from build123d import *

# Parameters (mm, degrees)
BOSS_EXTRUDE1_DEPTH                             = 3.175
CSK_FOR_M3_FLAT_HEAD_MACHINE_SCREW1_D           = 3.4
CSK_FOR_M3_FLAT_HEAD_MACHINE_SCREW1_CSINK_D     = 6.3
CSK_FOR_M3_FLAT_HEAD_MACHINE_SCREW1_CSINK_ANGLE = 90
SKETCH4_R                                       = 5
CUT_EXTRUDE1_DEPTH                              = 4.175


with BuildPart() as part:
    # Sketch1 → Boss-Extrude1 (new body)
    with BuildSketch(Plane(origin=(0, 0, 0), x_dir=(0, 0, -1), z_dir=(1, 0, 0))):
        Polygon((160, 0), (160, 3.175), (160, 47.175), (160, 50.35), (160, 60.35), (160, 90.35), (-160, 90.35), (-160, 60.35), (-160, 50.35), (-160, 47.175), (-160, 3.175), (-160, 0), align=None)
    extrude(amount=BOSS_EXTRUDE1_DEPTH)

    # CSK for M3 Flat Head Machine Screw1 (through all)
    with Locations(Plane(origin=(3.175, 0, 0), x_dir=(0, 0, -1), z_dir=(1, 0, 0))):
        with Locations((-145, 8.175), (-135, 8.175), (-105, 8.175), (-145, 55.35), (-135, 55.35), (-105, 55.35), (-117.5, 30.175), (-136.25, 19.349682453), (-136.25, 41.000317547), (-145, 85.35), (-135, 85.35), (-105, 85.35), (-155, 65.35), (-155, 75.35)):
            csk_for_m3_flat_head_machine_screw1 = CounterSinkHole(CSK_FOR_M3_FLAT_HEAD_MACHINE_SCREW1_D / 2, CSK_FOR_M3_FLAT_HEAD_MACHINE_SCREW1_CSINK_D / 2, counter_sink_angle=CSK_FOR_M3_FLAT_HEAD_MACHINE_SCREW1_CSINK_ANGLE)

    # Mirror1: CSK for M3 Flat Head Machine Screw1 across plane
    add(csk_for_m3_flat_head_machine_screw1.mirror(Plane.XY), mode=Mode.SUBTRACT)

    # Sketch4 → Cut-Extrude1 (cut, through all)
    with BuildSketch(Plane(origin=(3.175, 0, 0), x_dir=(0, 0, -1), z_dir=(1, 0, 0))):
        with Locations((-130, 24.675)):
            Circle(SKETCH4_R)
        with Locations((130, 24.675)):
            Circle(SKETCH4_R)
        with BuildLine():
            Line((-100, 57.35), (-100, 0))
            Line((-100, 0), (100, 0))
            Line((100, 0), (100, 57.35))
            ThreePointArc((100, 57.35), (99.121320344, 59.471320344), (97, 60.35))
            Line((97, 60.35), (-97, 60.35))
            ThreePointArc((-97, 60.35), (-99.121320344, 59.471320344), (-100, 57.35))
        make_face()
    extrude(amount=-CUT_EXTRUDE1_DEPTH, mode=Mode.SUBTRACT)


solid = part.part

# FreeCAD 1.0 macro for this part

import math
import FreeCAD as App
import Part
import Sketcher
from FreeCAD import Vector
Q = App.Units.Quantity


def add_polygon(sketch, points):
    """Adds a closed chain of lines whose ends are joined by coincident constraints."""
    first, n = sketch.GeometryCount, len(points)
    for a, b in zip(points, points[1:] + points[:1]):
        sketch.addGeometry(Part.LineSegment(App.Vector(*a, 0), App.Vector(*b, 0)), False)
    for i in range(n):
        sketch.addConstraint(Sketcher.Constraint("Coincident", first + i, 2, first + (i + 1) % n, 1))

doc = App.newDocument("Part")
body = doc.addObject("PartDesign::Body", "Body")

# Sketch on YZ plane
sketch1 = doc.addObject("Sketcher::SketchObject", "Sketch")
body.addObject(sketch1)
sketch1.AttachmentSupport = (doc.YZ_Plane, [""])
sketch1.MapMode = "FlatFace"
add_polygon(sketch1, [(0, -160), (90, -160), (90, 160), (0, 160)])  # lines 0-3
sketch1.addConstraint(Sketcher.Constraint("Horizontal", 0))
sketch1.addConstraint(Sketcher.Constraint("Vertical", 1))
sketch1.addConstraint(Sketcher.Constraint("Horizontal", 2))
sketch1.addConstraint(Sketcher.Constraint("Vertical", 3))
sketch1.addConstraint(Sketcher.Constraint("Symmetric", 2, 2, 3, 2, -1, 1))
sketch1.addConstraint(Sketcher.Constraint("DistanceY", 1, 1, 1, 2, Q("320 mm")))
sketch1.addConstraint(Sketcher.Constraint("DistanceX", 0, 1, 0, 2, Q("90.35 mm")))
pad1 = doc.addObject("PartDesign::Pad", "Pad")
body.addObject(pad1)
pad1.Profile = sketch1
pad1.Length = 3.175

# Sketch on YZ plane
sketch2 = doc.addObject("Sketcher::SketchObject", "Sketch001")
body.addObject(sketch2)
sketch2.AttachmentSupport = (doc.YZ_Plane, [""])
sketch2.MapMode = "FlatFace"
sketch2.AttachmentOffset = App.Placement(Vector(0, 0, 3.175), App.Rotation())
sketch2.addGeometry(Part.Circle(Vector(8.2, 145, 0), Vector(0, 0, 1), 1.7), False)
sketch2.addGeometry(Part.Circle(Vector(8.2, 135, 0), Vector(0, 0, 1), 1.7), False)
sketch2.addGeometry(Part.Circle(Vector(8.2, 105, 0), Vector(0, 0, 1), 1.7), False)
sketch2.addGeometry(Part.Circle(Vector(55.4, 145, 0), Vector(0, 0, 1), 1.7), False)
sketch2.addGeometry(Part.Circle(Vector(55.4, 135, 0), Vector(0, 0, 1), 1.7), False)
sketch2.addGeometry(Part.Circle(Vector(55.4, 105, 0), Vector(0, 0, 1), 1.7), False)
sketch2.addGeometry(Part.Circle(Vector(30.2, 117.5, 0), Vector(0, 0, 1), 1.7), False)
sketch2.addGeometry(Part.Circle(Vector(19.3, 136.2, 0), Vector(0, 0, 1), 1.7), False)
sketch2.addGeometry(Part.Circle(Vector(41, 136.2, 0), Vector(0, 0, 1), 1.7), False)
sketch2.addGeometry(Part.Circle(Vector(85.3, 145, 0), Vector(0, 0, 1), 1.7), False)
sketch2.addGeometry(Part.Circle(Vector(85.3, 135, 0), Vector(0, 0, 1), 1.7), False)
sketch2.addGeometry(Part.Circle(Vector(85.3, 105, 0), Vector(0, 0, 1), 1.7), False)
sketch2.addGeometry(Part.Circle(Vector(65.3, 155, 0), Vector(0, 0, 1), 1.7), False)
sketch2.addGeometry(Part.Circle(Vector(75.3, 155, 0), Vector(0, 0, 1), 1.7), False)
sketch2.addConstraint(Sketcher.Constraint("Equal", 0, 1))
sketch2.addConstraint(Sketcher.Constraint("Equal", 1, 2))
sketch2.addConstraint(Sketcher.Constraint("Equal", 2, 3))
sketch2.addConstraint(Sketcher.Constraint("Equal", 3, 4))
sketch2.addConstraint(Sketcher.Constraint("Equal", 4, 5))
sketch2.addConstraint(Sketcher.Constraint("Equal", 5, 6))
sketch2.addConstraint(Sketcher.Constraint("Equal", 6, 7))
sketch2.addConstraint(Sketcher.Constraint("Equal", 7, 8))
sketch2.addConstraint(Sketcher.Constraint("Equal", 8, 9))
sketch2.addConstraint(Sketcher.Constraint("Equal", 9, 10))
sketch2.addConstraint(Sketcher.Constraint("Equal", 10, 11))
sketch2.addConstraint(Sketcher.Constraint("Equal", 11, 12))
sketch2.addConstraint(Sketcher.Constraint("Equal", 12, 13))
sketch2.addConstraint(Sketcher.Constraint("Horizontal", 0, 3, 3, 3))
sketch2.addConstraint(Sketcher.Constraint("Horizontal", 1, 3, 4, 3))
sketch2.addConstraint(Sketcher.Constraint("Horizontal", 2, 3, 5, 3))
sketch2.addConstraint(Sketcher.Constraint("Horizontal", 7, 3, 8, 3))
sketch2.addConstraint(Sketcher.Constraint("Horizontal", 3, 3, 9, 3))
sketch2.addConstraint(Sketcher.Constraint("Horizontal", 4, 3, 10, 3))
sketch2.addConstraint(Sketcher.Constraint("Horizontal", 5, 3, 11, 3))
sketch2.addConstraint(Sketcher.Constraint("Horizontal", 12, 3, 13, 3))
sketch2.addConstraint(Sketcher.Constraint("Vertical", 0, 3, 1, 3))
sketch2.addConstraint(Sketcher.Constraint("Vertical", 1, 3, 2, 3))
sketch2.addConstraint(Sketcher.Constraint("Vertical", 3, 3, 4, 3))
sketch2.addConstraint(Sketcher.Constraint("Vertical", 4, 3, 5, 3))
sketch2.addConstraint(Sketcher.Constraint("Vertical", 9, 3, 10, 3))
sketch2.addConstraint(Sketcher.Constraint("Vertical", 10, 3, 11, 3))
sketch2.addConstraint(Sketcher.Constraint("Diameter", 0, Q("3.4 mm")))
sketch2.addConstraint(Sketcher.Constraint("DistanceY", -1, 1, 0, 3, Q("145 mm")))
sketch2.addConstraint(Sketcher.Constraint("DistanceY", -1, 1, 1, 3, Q("135 mm")))
sketch2.addConstraint(Sketcher.Constraint("DistanceY", -1, 1, 2, 3, Q("105 mm")))
sketch2.addConstraint(Sketcher.Constraint("DistanceY", -1, 1, 12, 3, Q("155 mm")))
sketch2.addConstraint(Sketcher.Constraint("DistanceX", 2, 3, 6, 3, Q("22 mm")))
sketch2.addConstraint(Sketcher.Constraint("DistanceX", 3, 3, 9, 3, Q("30 mm")))
sketch2.addConstraint(Sketcher.Constraint("DistanceX", 3, 3, 12, 3, Q("10 mm")))
sketch2.addConstraint(Sketcher.Constraint("DistanceX", 12, 3, 13, 3, Q("10 mm")))
sketch2.addConstraint(Sketcher.Constraint("DistanceY", -1, 1, 6, 3, Q("117.5 mm")))
sketch2.addConstraint(Sketcher.Constraint("DistanceX", -1, 1, 3, 3, Q("55.35 mm")))
sketch2.addConstraint(Sketcher.Constraint("DistanceY", -1, 1, 7, 3, Q("136.25 mm")))
sketch2.addConstraint(Sketcher.Constraint("DistanceX", -1, 1, 0, 3, Q("8.175 mm")))
sketch2.addConstraint(Sketcher.Constraint("DistanceX", -1, 1, 7, 3, Q("19.349682 mm")))
sketch2.addConstraint(Sketcher.Constraint("DistanceX", -1, 1, 8, 3, Q("41.000318 mm")))
doc.recompute()
hole = doc.addObject("PartDesign::Hole", "Hole")
body.addObject(hole)
hole.Profile = sketch2
hole.ThreadType = "None"
hole.Diameter = 3.4
hole.DepthType = "ThroughAll"
hole.HoleCutType = "Countersink"
hole.HoleCutDiameter = 6.3
hole.HoleCutCountersinkAngle = 90
doc.recompute()

mirrored = doc.addObject("PartDesign::Mirrored", "Mirrored")
body.addObject(mirrored)
mirrored.Originals = [hole]
mirrored.MirrorPlane = (doc.XY_Plane, [""])
body.Tip = mirrored

# Sketch on YZ plane
sketch3 = doc.addObject("Sketcher::SketchObject", "Sketch002")
body.addObject(sketch3)
sketch3.AttachmentSupport = (doc.YZ_Plane, [""])
sketch3.MapMode = "FlatFace"
sketch3.AttachmentOffset = App.Placement(Vector(0, 0, 3.175), App.Rotation())
sketch3.addGeometry(Part.Circle(Vector(24.7, 130, 0), Vector(0, 0, 1), 5), False)
sketch3.addGeometry(Part.Circle(Vector(24.7, -130, 0), Vector(0, 0, 1), 5), False)
sketch3.addGeometry(Part.LineSegment(Vector(57.4, 100, 0), Vector(0, 100, 0)), False)
sketch3.addGeometry(Part.LineSegment(Vector(0, 100, 0), Vector(0, -100, 0)), False)
sketch3.addGeometry(Part.LineSegment(Vector(0, -100, 0), Vector(57.4, -100, 0)), False)
sketch3.addGeometry(Part.ArcOfCircle(Part.Circle(Vector(57.4, -97, 0), Vector(0, 0, 1), 3), math.radians(-90), math.radians(0)), False)
sketch3.addGeometry(Part.LineSegment(Vector(60.4, -97, 0), Vector(60.4, 97, 0)), False)
sketch3.addGeometry(Part.ArcOfCircle(Part.Circle(Vector(57.4, 97, 0), Vector(0, 0, 1), 3), math.radians(0), math.radians(90)), False)
sketch3.addConstraint(Sketcher.Constraint("Coincident", 2, 2, 3, 1))
sketch3.addConstraint(Sketcher.Constraint("Coincident", 3, 2, 4, 1))
sketch3.addConstraint(Sketcher.Constraint("Tangent", 4, 2, 5, 1))
sketch3.addConstraint(Sketcher.Constraint("Tangent", 5, 2, 6, 1))
sketch3.addConstraint(Sketcher.Constraint("Tangent", 6, 2, 7, 1))
sketch3.addConstraint(Sketcher.Constraint("Tangent", 7, 2, 2, 1))
sketch3.addConstraint(Sketcher.Constraint("Horizontal", 2))
sketch3.addConstraint(Sketcher.Constraint("Vertical", 3))
sketch3.addConstraint(Sketcher.Constraint("Horizontal", 4))
sketch3.addConstraint(Sketcher.Constraint("Vertical", 6))
sketch3.addConstraint(Sketcher.Constraint("Equal", 0, 1))
sketch3.addConstraint(Sketcher.Constraint("Equal", 5, 7))
sketch3.addConstraint(Sketcher.Constraint("Symmetric", 2, 2, 3, 2, -1, 1))
sketch3.addConstraint(Sketcher.Constraint("Symmetric", 0, 3, 1, 3, -1))
sketch3.addConstraint(Sketcher.Constraint("Diameter", 0, Q("10 mm")))
sketch3.addConstraint(Sketcher.Constraint("Radius", 5, Q("3 mm")))
sketch3.addConstraint(Sketcher.Constraint("DistanceY", 3, 2, 3, 1, Q("200 mm")))
sketch3.addConstraint(Sketcher.Constraint("DistanceY", -1, 1, 0, 3, Q("130 mm")))
sketch3.addConstraint(Sketcher.Constraint("DistanceX", 2, 2, 2, 1, Q("57.35 mm")))
sketch3.addConstraint(Sketcher.Constraint("DistanceX", -1, 1, 0, 3, Q("24.675 mm")))
pocket1 = doc.addObject("PartDesign::Pocket", "Pocket")
body.addObject(pocket1)
pocket1.Profile = sketch3
pocket1.Type = "ThroughAll"

doc.recompute()
